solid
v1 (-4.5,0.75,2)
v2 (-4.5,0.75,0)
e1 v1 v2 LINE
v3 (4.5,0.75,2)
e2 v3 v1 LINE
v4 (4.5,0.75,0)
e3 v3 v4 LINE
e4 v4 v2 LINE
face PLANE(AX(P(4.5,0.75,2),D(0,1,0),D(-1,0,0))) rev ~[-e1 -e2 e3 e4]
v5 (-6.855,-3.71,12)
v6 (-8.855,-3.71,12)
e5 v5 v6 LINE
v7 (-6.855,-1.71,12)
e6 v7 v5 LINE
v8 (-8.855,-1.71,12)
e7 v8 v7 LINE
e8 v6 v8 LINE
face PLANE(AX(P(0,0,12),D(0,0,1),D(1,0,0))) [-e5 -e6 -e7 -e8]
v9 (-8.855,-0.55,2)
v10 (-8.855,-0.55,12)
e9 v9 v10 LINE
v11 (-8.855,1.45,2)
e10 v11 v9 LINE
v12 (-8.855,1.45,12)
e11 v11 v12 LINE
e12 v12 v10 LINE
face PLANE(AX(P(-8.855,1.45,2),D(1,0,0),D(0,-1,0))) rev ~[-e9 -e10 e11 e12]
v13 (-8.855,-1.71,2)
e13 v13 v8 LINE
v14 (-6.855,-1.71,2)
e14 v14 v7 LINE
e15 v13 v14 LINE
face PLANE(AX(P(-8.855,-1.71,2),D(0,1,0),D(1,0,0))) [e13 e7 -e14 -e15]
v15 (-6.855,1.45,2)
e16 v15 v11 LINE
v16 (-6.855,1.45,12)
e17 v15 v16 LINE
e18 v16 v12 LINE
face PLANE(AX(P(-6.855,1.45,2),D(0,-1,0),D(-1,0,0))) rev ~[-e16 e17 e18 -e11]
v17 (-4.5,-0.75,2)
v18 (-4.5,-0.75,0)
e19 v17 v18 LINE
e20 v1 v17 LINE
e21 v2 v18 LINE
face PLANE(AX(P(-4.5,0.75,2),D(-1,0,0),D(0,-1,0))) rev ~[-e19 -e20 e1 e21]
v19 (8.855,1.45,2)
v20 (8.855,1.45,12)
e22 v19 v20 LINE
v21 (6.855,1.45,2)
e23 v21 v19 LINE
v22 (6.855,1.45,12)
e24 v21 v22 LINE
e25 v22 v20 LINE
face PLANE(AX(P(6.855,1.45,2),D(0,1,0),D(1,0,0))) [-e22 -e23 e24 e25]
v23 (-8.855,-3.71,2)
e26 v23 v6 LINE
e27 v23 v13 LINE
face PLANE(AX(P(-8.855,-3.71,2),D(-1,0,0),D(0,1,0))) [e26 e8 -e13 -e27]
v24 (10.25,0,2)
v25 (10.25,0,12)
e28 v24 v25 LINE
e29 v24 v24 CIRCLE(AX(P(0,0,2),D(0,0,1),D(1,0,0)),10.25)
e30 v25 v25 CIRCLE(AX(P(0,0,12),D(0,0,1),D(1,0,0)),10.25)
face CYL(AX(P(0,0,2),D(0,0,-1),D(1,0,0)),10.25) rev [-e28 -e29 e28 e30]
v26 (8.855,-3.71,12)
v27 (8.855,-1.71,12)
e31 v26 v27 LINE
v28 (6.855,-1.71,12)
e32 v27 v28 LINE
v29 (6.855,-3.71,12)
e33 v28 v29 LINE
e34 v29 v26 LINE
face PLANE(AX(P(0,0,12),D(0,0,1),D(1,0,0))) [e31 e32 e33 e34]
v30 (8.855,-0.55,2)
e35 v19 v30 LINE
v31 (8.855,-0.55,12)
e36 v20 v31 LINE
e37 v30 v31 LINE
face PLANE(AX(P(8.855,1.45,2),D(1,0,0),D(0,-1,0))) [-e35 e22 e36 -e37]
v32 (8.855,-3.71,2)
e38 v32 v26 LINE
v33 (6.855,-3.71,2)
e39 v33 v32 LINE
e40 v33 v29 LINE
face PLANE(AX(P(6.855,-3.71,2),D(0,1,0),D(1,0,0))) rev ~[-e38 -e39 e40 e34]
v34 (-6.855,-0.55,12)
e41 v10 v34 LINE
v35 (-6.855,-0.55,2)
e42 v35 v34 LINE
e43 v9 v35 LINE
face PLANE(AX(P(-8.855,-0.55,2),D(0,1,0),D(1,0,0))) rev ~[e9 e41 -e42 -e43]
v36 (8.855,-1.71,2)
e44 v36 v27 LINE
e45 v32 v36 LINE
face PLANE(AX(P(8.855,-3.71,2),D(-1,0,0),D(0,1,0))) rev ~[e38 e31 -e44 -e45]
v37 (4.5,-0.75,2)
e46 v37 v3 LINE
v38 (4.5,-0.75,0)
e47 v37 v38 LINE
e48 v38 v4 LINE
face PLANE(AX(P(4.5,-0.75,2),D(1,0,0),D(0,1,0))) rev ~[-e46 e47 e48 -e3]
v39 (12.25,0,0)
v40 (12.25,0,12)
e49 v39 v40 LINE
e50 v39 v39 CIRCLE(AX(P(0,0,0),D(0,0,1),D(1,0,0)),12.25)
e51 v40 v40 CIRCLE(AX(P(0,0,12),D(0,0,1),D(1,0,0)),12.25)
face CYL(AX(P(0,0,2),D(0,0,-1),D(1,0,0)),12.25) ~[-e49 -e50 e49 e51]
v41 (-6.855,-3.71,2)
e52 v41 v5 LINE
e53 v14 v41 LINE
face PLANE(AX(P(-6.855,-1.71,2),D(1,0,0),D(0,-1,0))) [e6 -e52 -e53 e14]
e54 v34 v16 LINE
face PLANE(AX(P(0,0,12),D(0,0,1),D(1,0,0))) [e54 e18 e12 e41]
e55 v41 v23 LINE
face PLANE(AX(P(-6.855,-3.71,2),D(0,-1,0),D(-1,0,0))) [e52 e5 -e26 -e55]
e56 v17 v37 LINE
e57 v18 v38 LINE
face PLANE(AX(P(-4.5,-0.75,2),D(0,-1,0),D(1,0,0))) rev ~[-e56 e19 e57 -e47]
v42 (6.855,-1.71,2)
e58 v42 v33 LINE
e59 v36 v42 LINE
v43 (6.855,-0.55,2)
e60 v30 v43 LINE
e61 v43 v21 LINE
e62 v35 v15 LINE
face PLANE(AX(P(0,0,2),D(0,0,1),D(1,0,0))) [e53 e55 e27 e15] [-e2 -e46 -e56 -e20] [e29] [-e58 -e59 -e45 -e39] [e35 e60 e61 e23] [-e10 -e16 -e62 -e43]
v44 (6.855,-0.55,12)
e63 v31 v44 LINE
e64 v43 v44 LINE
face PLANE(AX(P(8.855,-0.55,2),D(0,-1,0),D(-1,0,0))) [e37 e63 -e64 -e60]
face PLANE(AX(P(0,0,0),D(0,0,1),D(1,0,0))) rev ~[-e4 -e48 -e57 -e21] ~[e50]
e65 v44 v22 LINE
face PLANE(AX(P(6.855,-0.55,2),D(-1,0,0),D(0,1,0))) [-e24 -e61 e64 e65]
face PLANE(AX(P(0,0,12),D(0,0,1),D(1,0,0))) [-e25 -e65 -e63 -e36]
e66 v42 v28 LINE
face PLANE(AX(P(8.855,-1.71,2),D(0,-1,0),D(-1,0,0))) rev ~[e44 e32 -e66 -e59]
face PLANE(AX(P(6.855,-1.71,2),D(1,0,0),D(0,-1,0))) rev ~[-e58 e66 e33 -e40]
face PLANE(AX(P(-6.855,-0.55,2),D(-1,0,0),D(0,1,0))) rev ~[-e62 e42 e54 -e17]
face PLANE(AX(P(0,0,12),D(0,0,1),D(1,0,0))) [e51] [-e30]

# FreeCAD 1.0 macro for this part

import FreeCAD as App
import Part
import Sketcher
Q = App.Units.Quantity


def add_polygon(sketch, points):
    """Adds a closed chain of lines whose ends are joined by coincident constraints."""
    first, n = sketch.GeometryCount, len(points)
    for a, b in zip(points, points[1:] + points[:1]):
        sketch.addGeometry(Part.LineSegment(App.Vector(*a, 0), App.Vector(*b, 0)), False)
    for i in range(n):
        sketch.addConstraint(Sketcher.Constraint("Coincident", first + i, 2, first + (i + 1) % n, 1))

doc = App.newDocument("Part")
body = doc.addObject("PartDesign::Body", "Body")

sketch1 = body.newObject("Sketcher::SketchObject", "Sketch")
sketch1.AttachmentSupport = (doc.getObject("XY_Plane"), [""])
sketch1.MapMode = "FlatFace"
sketch1.addGeometry(Part.Circle(App.Vector(0, 0, 0), App.Vector(0, 0, 1), 12.25), False)
sketch1.addConstraint(Sketcher.Constraint("Coincident", 0, 3, -1, 1))
sketch1.addConstraint(Sketcher.Constraint("Diameter", 0, Q("24.5 mm")))
pad1 = body.newObject("PartDesign::Pad", "Pad")
pad1.Profile = sketch1
pad1.Length = 2

sketch2 = body.newObject("Sketcher::SketchObject", "Sketch001")
sketch2.AttachmentSupport = (doc.getObject("XY_Plane"), [""])
sketch2.MapMode = "FlatFace"
sketch2.AttachmentOffset = App.Placement(App.Vector(0, 0, 2), App.Rotation())
add_polygon(sketch2, [(-4.5, 0.75), (-4.5, -0.75), (4.5, -0.75), (4.5, 0.75)])
sketch2.addConstraint(Sketcher.Constraint("Vertical", 0))
sketch2.addConstraint(Sketcher.Constraint("Horizontal", 1))
sketch2.addConstraint(Sketcher.Constraint("Vertical", 2))
sketch2.addConstraint(Sketcher.Constraint("Horizontal", 3))
sketch2.addConstraint(Sketcher.Constraint("Symmetric", 0, 2, 2, 2, -1, 1))
sketch2.addConstraint(Sketcher.Constraint("DistanceX", 1, 1, 1, 2, Q("9 mm")))
sketch2.addConstraint(Sketcher.Constraint("DistanceY", 0, 2, 0, 1, Q("1.5 mm")))
pocket1 = body.newObject("PartDesign::Pocket", "Pocket")
pocket1.Profile = sketch2
pocket1.Type = "ThroughAll"

sketch3 = body.newObject("Sketcher::SketchObject", "Sketch002")
sketch3.AttachmentSupport = (doc.getObject("XY_Plane"), [""])
sketch3.MapMode = "FlatFace"
sketch3.AttachmentOffset = App.Placement(App.Vector(0, 0, 2), App.Rotation())
sketch3.addGeometry(Part.Circle(App.Vector(0, 0, 0), App.Vector(0, 0, 1), 12.25), False)
sketch3.addGeometry(Part.Circle(App.Vector(0, 0, 0), App.Vector(0, 0, 1), 10.25), False)
sketch3.addConstraint(Sketcher.Constraint("Coincident", 0, 3, -1, 1))
sketch3.addConstraint(Sketcher.Constraint("Coincident", 1, 3, -1, 1))
sketch3.addConstraint(Sketcher.Constraint("Diameter", 0, Q("24.5 mm")))
sketch3.addConstraint(Sketcher.Constraint("Diameter", 1, Q("20.5 mm")))
pad2 = body.newObject("PartDesign::Pad", "Pad001")
pad2.Profile = sketch3
pad2.Length = 10

sketch4 = body.newObject("Sketcher::SketchObject", "Sketch003")
sketch4.AttachmentSupport = (doc.getObject("XY_Plane"), [""])
sketch4.MapMode = "FlatFace"
sketch4.AttachmentOffset = App.Placement(App.Vector(0, 0, 2), App.Rotation())
add_polygon(sketch4, [(-8.855, 1.45), (-8.855, -0.55), (-6.855, -0.55), (-6.855, 1.45)])
add_polygon(sketch4, [(-6.855, -1.71), (-8.855, -1.71), (-8.855, -3.71), (-6.855, -3.71)])
add_polygon(sketch4, [(6.855, -0.55), (8.855, -0.55), (8.855, 1.45), (6.855, 1.45)])
add_polygon(sketch4, [(8.855, -1.71), (6.855, -1.71), (6.855, -3.71), (8.855, -3.71)])
sketch4.addConstraint(Sketcher.Constraint("Vertical", 0))
sketch4.addConstraint(Sketcher.Constraint("Horizontal", 1))
sketch4.addConstraint(Sketcher.Constraint("Vertical", 2))
sketch4.addConstraint(Sketcher.Constraint("Horizontal", 3))
sketch4.addConstraint(Sketcher.Constraint("Horizontal", 4))
sketch4.addConstraint(Sketcher.Constraint("Vertical", 5))
sketch4.addConstraint(Sketcher.Constraint("Horizontal", 6))
sketch4.addConstraint(Sketcher.Constraint("Vertical", 7))
sketch4.addConstraint(Sketcher.Constraint("Horizontal", 8))
sketch4.addConstraint(Sketcher.Constraint("Vertical", 9))
sketch4.addConstraint(Sketcher.Constraint("Horizontal", 10))
sketch4.addConstraint(Sketcher.Constraint("Vertical", 11))
sketch4.addConstraint(Sketcher.Constraint("Horizontal", 12))
sketch4.addConstraint(Sketcher.Constraint("Vertical", 13))
sketch4.addConstraint(Sketcher.Constraint("Horizontal", 14))
sketch4.addConstraint(Sketcher.Constraint("Vertical", 15))
sketch4.addConstraint(Sketcher.Constraint("Symmetric", 0, 2, 8, 2, -2))
sketch4.addConstraint(Sketcher.Constraint("Symmetric", 2, 2, 10, 2, -2))
sketch4.addConstraint(Sketcher.Constraint("Symmetric", 7, 2, 12, 2, -2))
sketch4.addConstraint(Sketcher.Constraint("Symmetric", 5, 2, 14, 2, -2))
sketch4.addConstraint(Sketcher.Constraint("Vertical", 3, 2, 4, 2))
sketch4.addConstraint(Sketcher.Constraint("Vertical", 2, 2, 6, 2))
sketch4.addConstraint(Sketcher.Constraint("Equal", 14, 0))
sketch4.addConstraint(Sketcher.Constraint("Equal", 2, 5))
sketch4.addConstraint(Sketcher.Constraint("DistanceX", 1, 1, 1, 2, Q("2 mm")))
sketch4.addConstraint(Sketcher.Constraint("DistanceY", 0, 2, -1, 1, Q("0.55 mm")))
sketch4.addConstraint(Sketcher.Constraint("DistanceY", 4, 2, -1, 1, Q("1.71 mm")))
sketch4.addConstraint(Sketcher.Constraint("DistanceX", 1, 2, 8, 2, Q("15.71 mm")))
pad3 = body.newObject("PartDesign::Pad", "Pad002")
pad3.Profile = sketch4
pad3.Length = 10

doc.recompute()
